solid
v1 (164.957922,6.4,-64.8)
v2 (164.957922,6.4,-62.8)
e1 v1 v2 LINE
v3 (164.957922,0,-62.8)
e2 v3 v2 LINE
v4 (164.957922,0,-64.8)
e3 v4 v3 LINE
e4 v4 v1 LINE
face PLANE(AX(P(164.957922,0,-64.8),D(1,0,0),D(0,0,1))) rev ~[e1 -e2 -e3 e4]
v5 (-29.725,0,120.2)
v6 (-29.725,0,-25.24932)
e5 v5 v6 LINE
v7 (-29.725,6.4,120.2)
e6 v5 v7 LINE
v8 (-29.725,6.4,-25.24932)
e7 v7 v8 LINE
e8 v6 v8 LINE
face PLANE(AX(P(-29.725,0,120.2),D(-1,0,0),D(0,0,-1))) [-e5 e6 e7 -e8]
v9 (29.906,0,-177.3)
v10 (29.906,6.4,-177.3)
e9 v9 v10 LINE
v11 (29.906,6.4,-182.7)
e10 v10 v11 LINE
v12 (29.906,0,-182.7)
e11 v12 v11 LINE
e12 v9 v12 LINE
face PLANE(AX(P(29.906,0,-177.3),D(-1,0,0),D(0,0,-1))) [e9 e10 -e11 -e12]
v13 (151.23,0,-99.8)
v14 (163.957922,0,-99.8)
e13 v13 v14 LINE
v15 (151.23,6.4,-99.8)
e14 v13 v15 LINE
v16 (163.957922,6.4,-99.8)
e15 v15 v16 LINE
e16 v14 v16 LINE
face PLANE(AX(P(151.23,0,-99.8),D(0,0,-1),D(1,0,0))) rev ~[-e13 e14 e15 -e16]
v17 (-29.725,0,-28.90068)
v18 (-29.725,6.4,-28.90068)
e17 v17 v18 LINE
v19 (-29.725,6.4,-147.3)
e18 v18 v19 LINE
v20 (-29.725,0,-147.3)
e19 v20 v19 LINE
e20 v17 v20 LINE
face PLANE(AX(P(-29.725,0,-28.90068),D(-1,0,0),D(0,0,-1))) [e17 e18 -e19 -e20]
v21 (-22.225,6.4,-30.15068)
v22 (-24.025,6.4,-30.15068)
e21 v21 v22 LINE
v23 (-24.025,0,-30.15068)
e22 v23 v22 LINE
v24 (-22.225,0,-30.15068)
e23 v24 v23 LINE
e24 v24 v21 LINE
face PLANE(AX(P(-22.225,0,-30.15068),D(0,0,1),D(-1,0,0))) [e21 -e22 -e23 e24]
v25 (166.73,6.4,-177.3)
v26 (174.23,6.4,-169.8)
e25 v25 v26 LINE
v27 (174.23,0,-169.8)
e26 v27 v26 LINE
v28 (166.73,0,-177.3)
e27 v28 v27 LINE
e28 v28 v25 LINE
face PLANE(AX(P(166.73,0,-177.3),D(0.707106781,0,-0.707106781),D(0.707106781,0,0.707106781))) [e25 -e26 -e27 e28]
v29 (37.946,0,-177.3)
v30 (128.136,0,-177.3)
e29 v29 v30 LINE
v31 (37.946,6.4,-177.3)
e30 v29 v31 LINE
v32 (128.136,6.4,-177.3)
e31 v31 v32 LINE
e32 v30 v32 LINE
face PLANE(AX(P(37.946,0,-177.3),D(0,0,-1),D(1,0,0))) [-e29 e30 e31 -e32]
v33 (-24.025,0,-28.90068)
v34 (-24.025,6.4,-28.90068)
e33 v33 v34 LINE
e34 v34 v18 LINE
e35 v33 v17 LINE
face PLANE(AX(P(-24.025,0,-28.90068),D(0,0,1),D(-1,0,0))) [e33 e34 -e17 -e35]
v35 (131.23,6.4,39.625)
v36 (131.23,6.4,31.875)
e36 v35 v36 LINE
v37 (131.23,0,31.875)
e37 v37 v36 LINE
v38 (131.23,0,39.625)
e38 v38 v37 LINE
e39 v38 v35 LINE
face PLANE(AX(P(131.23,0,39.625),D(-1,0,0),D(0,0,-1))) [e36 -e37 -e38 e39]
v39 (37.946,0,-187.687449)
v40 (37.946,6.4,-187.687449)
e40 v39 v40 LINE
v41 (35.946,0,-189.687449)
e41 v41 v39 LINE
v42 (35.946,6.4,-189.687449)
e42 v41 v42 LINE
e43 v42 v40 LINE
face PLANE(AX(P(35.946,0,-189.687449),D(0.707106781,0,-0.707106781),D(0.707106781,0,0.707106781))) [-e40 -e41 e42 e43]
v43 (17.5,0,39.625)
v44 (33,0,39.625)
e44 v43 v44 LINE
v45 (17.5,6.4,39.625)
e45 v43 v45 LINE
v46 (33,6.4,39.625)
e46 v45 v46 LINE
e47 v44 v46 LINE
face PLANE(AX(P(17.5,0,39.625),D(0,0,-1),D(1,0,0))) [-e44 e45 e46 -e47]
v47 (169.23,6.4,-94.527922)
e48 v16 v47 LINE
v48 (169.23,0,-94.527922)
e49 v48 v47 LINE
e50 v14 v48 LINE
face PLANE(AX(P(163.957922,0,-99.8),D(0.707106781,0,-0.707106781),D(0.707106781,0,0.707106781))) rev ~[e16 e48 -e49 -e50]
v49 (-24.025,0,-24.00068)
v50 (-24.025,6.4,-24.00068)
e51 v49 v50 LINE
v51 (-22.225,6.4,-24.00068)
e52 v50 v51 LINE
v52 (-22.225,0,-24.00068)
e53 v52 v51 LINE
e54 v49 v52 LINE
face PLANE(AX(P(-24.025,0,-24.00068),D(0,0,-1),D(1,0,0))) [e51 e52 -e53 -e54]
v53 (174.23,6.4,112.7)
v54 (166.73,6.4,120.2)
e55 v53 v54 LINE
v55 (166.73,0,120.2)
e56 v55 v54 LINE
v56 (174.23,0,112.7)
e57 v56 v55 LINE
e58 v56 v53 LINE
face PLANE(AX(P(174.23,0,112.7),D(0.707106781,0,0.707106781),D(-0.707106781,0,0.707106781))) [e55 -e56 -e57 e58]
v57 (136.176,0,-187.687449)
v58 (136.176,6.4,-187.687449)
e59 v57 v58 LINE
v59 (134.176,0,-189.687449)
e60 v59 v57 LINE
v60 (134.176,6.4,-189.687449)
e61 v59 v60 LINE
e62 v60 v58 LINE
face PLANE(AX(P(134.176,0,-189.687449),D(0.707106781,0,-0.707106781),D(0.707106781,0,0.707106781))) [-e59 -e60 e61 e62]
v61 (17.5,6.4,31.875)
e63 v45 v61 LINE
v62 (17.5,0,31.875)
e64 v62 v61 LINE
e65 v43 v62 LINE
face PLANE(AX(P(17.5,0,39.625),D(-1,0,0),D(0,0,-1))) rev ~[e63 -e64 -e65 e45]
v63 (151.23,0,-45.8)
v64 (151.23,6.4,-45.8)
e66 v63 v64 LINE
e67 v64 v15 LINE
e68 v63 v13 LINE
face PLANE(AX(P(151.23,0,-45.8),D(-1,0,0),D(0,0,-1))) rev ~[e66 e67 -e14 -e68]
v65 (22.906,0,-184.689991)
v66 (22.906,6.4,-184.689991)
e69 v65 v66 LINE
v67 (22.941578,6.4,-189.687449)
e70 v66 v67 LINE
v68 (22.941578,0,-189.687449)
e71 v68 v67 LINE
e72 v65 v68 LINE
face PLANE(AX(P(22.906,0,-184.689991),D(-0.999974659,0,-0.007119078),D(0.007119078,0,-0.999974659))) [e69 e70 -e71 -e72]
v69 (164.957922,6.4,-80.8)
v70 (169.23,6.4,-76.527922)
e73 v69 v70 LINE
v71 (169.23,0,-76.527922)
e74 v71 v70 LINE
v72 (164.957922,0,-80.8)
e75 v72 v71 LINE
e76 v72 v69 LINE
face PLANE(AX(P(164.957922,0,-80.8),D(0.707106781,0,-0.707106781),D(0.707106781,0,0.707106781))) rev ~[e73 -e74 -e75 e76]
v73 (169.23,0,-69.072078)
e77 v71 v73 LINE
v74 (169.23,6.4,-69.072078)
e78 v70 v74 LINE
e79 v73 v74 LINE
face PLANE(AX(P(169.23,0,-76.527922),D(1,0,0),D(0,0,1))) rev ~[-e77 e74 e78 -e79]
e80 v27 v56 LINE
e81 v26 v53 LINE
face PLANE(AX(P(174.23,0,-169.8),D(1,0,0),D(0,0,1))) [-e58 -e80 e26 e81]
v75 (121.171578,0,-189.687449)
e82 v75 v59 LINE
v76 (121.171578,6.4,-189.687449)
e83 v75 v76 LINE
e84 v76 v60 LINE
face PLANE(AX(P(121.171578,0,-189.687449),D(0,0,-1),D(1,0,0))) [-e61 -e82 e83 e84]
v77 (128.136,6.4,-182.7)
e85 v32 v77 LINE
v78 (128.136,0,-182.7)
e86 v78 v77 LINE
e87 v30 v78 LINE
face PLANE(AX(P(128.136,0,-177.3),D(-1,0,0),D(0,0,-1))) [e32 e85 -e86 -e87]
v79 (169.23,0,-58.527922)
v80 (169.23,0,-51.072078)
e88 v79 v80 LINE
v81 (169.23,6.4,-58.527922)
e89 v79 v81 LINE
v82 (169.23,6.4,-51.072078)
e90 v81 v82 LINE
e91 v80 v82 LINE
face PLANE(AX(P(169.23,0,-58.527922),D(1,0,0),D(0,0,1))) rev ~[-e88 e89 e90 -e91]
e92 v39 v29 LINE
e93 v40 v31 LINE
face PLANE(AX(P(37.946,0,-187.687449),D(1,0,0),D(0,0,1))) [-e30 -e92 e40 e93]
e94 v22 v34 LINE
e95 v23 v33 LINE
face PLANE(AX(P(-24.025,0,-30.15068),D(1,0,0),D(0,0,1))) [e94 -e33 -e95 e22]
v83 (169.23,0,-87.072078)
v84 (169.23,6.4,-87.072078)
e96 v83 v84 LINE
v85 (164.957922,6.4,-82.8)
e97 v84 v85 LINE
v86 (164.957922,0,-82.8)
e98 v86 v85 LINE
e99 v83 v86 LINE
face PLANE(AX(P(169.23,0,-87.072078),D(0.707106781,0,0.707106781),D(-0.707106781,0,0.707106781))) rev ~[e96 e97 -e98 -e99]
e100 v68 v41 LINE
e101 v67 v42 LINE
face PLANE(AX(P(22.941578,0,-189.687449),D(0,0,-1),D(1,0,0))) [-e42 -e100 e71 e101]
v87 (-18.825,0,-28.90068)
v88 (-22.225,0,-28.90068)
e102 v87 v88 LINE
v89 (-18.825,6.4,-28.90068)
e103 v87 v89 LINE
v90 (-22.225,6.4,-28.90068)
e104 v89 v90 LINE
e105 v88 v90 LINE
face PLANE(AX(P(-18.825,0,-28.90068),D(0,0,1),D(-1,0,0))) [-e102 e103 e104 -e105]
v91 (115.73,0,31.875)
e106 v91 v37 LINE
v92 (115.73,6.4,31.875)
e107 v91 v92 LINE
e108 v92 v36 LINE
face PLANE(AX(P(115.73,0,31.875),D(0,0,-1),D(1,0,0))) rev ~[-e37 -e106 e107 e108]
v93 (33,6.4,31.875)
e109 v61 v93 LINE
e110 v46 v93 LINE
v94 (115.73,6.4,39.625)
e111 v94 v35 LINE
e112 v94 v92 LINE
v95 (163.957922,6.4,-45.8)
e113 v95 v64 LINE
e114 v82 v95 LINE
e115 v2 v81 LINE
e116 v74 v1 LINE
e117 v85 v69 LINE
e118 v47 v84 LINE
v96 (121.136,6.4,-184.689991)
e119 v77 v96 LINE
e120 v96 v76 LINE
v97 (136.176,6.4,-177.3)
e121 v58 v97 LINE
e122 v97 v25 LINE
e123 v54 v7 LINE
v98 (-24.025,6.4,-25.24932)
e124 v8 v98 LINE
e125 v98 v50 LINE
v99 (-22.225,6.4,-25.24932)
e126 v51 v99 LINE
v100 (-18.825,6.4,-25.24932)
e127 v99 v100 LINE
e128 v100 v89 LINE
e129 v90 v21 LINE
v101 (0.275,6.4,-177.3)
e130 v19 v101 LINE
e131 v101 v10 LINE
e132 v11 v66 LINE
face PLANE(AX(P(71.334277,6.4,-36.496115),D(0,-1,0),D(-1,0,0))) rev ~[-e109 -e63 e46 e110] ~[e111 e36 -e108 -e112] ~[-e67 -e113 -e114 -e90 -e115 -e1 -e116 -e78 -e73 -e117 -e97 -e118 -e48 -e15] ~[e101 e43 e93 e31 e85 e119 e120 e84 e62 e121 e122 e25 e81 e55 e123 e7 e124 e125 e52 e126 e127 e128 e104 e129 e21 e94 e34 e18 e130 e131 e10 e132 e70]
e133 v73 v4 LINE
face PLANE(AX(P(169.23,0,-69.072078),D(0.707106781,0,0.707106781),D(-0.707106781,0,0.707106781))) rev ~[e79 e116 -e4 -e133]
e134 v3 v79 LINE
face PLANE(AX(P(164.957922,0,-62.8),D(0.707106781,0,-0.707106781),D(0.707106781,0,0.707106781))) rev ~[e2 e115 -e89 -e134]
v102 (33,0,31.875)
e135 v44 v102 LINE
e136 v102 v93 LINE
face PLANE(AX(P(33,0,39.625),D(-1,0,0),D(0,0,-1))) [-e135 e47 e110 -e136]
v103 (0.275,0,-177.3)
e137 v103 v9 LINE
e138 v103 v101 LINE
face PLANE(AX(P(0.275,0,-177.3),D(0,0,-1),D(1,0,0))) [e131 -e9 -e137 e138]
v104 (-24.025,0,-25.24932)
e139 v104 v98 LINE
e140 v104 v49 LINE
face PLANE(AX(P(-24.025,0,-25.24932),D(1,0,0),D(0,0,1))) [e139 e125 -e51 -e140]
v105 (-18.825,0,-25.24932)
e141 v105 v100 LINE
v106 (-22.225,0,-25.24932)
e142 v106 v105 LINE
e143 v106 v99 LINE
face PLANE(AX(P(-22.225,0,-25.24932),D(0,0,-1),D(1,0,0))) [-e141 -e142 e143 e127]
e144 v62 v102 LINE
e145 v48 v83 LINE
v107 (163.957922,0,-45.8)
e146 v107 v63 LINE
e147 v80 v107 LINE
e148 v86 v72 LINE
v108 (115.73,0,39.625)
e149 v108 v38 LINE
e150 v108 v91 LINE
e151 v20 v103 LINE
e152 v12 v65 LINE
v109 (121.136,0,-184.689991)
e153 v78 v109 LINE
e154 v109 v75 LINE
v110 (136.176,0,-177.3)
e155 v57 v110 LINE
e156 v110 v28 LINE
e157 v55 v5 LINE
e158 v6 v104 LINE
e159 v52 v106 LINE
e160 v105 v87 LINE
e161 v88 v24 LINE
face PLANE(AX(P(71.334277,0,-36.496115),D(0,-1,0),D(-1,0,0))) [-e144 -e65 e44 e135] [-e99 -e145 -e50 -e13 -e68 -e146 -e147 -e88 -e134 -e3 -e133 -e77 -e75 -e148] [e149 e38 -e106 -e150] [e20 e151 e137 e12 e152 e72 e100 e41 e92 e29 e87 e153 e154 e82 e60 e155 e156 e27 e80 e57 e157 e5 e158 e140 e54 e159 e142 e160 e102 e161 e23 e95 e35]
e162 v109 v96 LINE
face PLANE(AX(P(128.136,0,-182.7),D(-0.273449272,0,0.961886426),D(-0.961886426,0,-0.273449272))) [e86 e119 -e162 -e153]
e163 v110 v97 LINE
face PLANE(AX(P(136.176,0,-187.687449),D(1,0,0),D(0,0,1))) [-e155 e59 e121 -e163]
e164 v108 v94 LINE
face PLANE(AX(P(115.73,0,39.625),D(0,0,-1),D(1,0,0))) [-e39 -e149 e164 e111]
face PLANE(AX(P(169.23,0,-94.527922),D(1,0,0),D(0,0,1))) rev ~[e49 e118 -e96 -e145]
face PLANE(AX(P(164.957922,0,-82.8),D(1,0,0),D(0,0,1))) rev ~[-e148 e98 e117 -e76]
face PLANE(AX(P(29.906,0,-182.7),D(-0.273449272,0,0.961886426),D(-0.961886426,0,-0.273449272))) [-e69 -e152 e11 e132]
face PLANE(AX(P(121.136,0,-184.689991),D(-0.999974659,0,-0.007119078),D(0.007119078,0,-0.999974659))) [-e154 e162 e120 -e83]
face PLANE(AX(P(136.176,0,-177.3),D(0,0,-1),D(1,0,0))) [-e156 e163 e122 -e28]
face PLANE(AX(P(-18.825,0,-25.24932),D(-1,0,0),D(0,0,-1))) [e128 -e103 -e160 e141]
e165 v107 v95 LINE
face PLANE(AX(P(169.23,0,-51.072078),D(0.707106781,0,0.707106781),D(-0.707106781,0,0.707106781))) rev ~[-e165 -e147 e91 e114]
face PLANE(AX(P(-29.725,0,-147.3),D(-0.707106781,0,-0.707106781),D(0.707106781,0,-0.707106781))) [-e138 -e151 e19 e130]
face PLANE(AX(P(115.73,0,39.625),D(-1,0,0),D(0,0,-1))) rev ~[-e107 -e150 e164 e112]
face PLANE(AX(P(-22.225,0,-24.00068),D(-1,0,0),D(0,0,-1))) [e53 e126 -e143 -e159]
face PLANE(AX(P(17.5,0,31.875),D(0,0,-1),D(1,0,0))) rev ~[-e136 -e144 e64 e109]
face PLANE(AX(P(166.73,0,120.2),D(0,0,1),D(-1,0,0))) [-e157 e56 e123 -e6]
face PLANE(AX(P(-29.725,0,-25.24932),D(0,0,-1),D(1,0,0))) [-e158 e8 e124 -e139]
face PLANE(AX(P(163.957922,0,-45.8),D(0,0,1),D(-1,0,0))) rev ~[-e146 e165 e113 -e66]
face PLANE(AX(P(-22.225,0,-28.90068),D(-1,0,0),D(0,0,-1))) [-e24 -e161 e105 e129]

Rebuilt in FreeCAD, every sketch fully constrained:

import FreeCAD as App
import Part
import Sketcher
Q = App.Units.Quantity


def add_polygon(sketch, points):
    """Adds a closed chain of lines whose ends are joined by coincident constraints."""
    first, n = sketch.GeometryCount, len(points)
    for a, b in zip(points, points[1:] + points[:1]):
        sketch.addGeometry(Part.LineSegment(App.Vector(*a, 0), App.Vector(*b, 0)), False)
    for i in range(n):
        sketch.addConstraint(Sketcher.Constraint("Coincident", first + i, 2, first + (i + 1) % n, 1))

doc = App.newDocument("Part")
params = doc.addObject("Spreadsheet::Sheet", "Params")
for row, (alias, value) in enumerate([
    ("sketch1_height", "2 mm"),
    ("sketch1_height2", "54 mm"),
    ("sketch1_width", "5.7 mm"),
    ("sketch1_width2", "1.8 mm"),
    ("sketch1_width3", "3.4 mm"),
    ("pad1_length", "6.4 mm"),
], start=1):
    params.set(f"A{row}", alias)
    params.set(f"B{row}", "=" + value)
    params.setAlias(f"B{row}", alias)

body = doc.addObject("PartDesign::Body", "Body")

sketch1 = body.newObject("Sketcher::SketchObject", "Sketch")
sketch1.AttachmentSupport = (doc.getObject("XZ_Plane"), [""])
sketch1.MapMode = "FlatFace"
add_polygon(sketch1, [(166.7, -177.3), (136.2, -177.3), (136.2, -187.7), (134.2, -189.7), (121.2, -189.7), (121.1, -184.7), (128.1, -182.7), (128.1, -177.3), (37.9, -177.3), (37.9, -187.7), (35.9, -189.7), (22.9, -189.7), (22.9, -184.7), (29.9, -182.7), (29.9, -177.3), (0.3, -177.3), (-29.7, -147.3), (-29.7, -28.9), (-24, -28.9), (-24, -30.2), (-22.2, -30.2), (-22.2, -28.9), (-18.8, -28.9), (-18.8, -25.2), (-22.2, -25.2), (-22.2, -24), (-24, -24), (-24, -25.2), (-29.7, -25.2), (-29.7, 120.2), (166.7, 120.2), (174.2, 112.7), (174.2, -169.8)])
add_polygon(sketch1, [(115.7, 39.6), (115.7, 31.9), (131.2, 31.9), (131.2, 39.6)])
add_polygon(sketch1, [(17.5, 39.6), (17.5, 31.9), (33, 31.9), (33, 39.6)])
add_polygon(sketch1, [(165, -82.8), (165, -80.8), (169.2, -76.5), (169.2, -69.1), (165, -64.8), (165, -62.8), (169.2, -58.5), (169.2, -51.1), (164, -45.8), (151.2, -45.8), (151.2, -99.8), (164, -99.8), (169.2, -94.5), (169.2, -87.1)])
sketch1.addConstraint(Sketcher.Constraint("Horizontal", 0))
sketch1.addConstraint(Sketcher.Constraint("Vertical", 1))
sketch1.addConstraint(Sketcher.Constraint("Horizontal", 3))
sketch1.addConstraint(Sketcher.Constraint("Vertical", 6))
sketch1.addConstraint(Sketcher.Constraint("Horizontal", 7))
sketch1.addConstraint(Sketcher.Constraint("Vertical", 8))
sketch1.addConstraint(Sketcher.Constraint("Horizontal", 10))
sketch1.addConstraint(Sketcher.Constraint("Vertical", 13))
sketch1.addConstraint(Sketcher.Constraint("Horizontal", 14))
sketch1.addConstraint(Sketcher.Constraint("Vertical", 16))
sketch1.addConstraint(Sketcher.Constraint("Horizontal", 17))
sketch1.addConstraint(Sketcher.Constraint("Vertical", 18))
sketch1.addConstraint(Sketcher.Constraint("Horizontal", 19))
sketch1.addConstraint(Sketcher.Constraint("Vertical", 20))
sketch1.addConstraint(Sketcher.Constraint("Horizontal", 21))
sketch1.addConstraint(Sketcher.Constraint("Vertical", 22))
sketch1.addConstraint(Sketcher.Constraint("Horizontal", 23))
sketch1.addConstraint(Sketcher.Constraint("Vertical", 24))
sketch1.addConstraint(Sketcher.Constraint("Horizontal", 25))
sketch1.addConstraint(Sketcher.Constraint("Vertical", 26))
sketch1.addConstraint(Sketcher.Constraint("Horizontal", 27))
sketch1.addConstraint(Sketcher.Constraint("Vertical", 28))
sketch1.addConstraint(Sketcher.Constraint("Horizontal", 29))
sketch1.addConstraint(Sketcher.Constraint("Vertical", 31))
sketch1.addConstraint(Sketcher.Constraint("Vertical", 33))
sketch1.addConstraint(Sketcher.Constraint("Horizontal", 34))
sketch1.addConstraint(Sketcher.Constraint("Vertical", 35))
sketch1.addConstraint(Sketcher.Constraint("Horizontal", 36))
sketch1.addConstraint(Sketcher.Constraint("Vertical", 37))
sketch1.addConstraint(Sketcher.Constraint("Horizontal", 38))
sketch1.addConstraint(Sketcher.Constraint("Vertical", 39))
sketch1.addConstraint(Sketcher.Constraint("Horizontal", 40))
sketch1.addConstraint(Sketcher.Constraint("Vertical", 41))
sketch1.addConstraint(Sketcher.Constraint("Vertical", 43))
sketch1.addConstraint(Sketcher.Constraint("Vertical", 45))
sketch1.addConstraint(Sketcher.Constraint("Vertical", 47))
sketch1.addConstraint(Sketcher.Constraint("Horizontal", 49))
sketch1.addConstraint(Sketcher.Constraint("Vertical", 50))
sketch1.addConstraint(Sketcher.Constraint("Horizontal", 51))
sketch1.addConstraint(Sketcher.Constraint("Vertical", 53))
sketch1.addConstraint(Sketcher.Constraint("Parallel", 2, 9))
sketch1.addConstraint(Sketcher.Constraint("Parallel", 4, 11))
sketch1.addConstraint(Sketcher.Constraint("Parallel", 5, 12))
sketch1.addConstraint(Sketcher.Constraint("Perpendicular", 9, 15))
sketch1.addConstraint(Sketcher.Constraint("Parallel", 15, 30))
sketch1.addConstraint(Sketcher.Constraint("Perpendicular", 30, 32))
sketch1.addConstraint(Sketcher.Constraint("Parallel", 32, 42))
sketch1.addConstraint(Sketcher.Constraint("Perpendicular", 42, 44))
sketch1.addConstraint(Sketcher.Constraint("Perpendicular", 44, 46))
sketch1.addConstraint(Sketcher.Constraint("Perpendicular", 46, 48))
sketch1.addConstraint(Sketcher.Constraint("Perpendicular", 48, 52))
sketch1.addConstraint(Sketcher.Constraint("Perpendicular", 52, 54))
sketch1.addConstraint(Sketcher.Constraint("Horizontal", 0, 2, 6, 2))
sketch1.addConstraint(Sketcher.Constraint("Horizontal", 1, 2, 8, 2))
sketch1.addConstraint(Sketcher.Constraint("Horizontal", 3, 2, 9, 2))
sketch1.addConstraint(Sketcher.Constraint("Horizontal", 4, 2, 11, 2))
sketch1.addConstraint(Sketcher.Constraint("Horizontal", 5, 2, 12, 2))
sketch1.addConstraint(Sketcher.Constraint("Horizontal", 7, 2, 13, 2))
sketch1.addConstraint(Sketcher.Constraint("Horizontal", 17, 2, 20, 2))
sketch1.addConstraint(Sketcher.Constraint("Horizontal", 23, 2, 26, 2))
sketch1.addConstraint(Sketcher.Constraint("Horizontal", 34, 2, 37, 2))
sketch1.addConstraint(Sketcher.Constraint("Horizontal", 36, 2, 39, 2))
sketch1.addConstraint(Sketcher.Constraint("Vertical", 20, 2, 23, 2))
sketch1.addConstraint(Sketcher.Constraint("Vertical", 18, 2, 25, 2))
sketch1.addConstraint(Sketcher.Constraint("Vertical", 16, 2, 27, 2))
sketch1.addConstraint(Sketcher.Constraint("Vertical", 29, 2, 32, 2))
sketch1.addConstraint(Sketcher.Constraint("Vertical", 41, 2, 44, 2))
sketch1.addConstraint(Sketcher.Constraint("Vertical", 43, 2, 46, 2))
sketch1.addConstraint(Sketcher.Constraint("Vertical", 48, 2, 51, 2))
sketch1.addConstraint(Sketcher.Constraint("Vertical", 47, 2, 52, 2))
sketch1.addConstraint(Sketcher.Constraint("Equal", 3, 10))
sketch1.addConstraint(Sketcher.Constraint("Equal", 36, 38))
sketch1.addConstraint(Sketcher.Constraint("Equal", 41, 45))
sketch1.addConstraint(Sketcher.Constraint("Equal", 43, 47))
sketch1.addConstraint(Sketcher.Constraint("Equal", 47, 53))
sketch1.addConstraint(Sketcher.Constraint("Equal", 30, 32))
sketch1.addConstraint(Sketcher.Constraint("DistanceY", 41, 1, 41, 2, Q("2 mm")))
sketch1.addConstraint(Sketcher.Constraint("DistanceY", 50, 2, 50, 1, Q("54 mm")))
sketch1.addConstraint(Sketcher.Constraint("DistanceX", 17, 1, 17, 2, Q("5.7 mm")))
sketch1.addConstraint(Sketcher.Constraint("DistanceX", 19, 1, 19, 2, Q("1.8 mm")))
sketch1.addConstraint(Sketcher.Constraint("DistanceX", 21, 1, 21, 2, Q("3.4 mm")))
sketch1.addConstraint(Sketcher.Constraint("DistanceX", 34, 1, 34, 2, Q("15.5 mm")))
sketch1.addConstraint(Sketcher.Constraint("DistanceY", 6, 1, 6, 2, Q("5.4 mm")))
sketch1.addConstraint(Sketcher.Constraint("DistanceY", 31, 2, 31, 1, Q("282.5 mm")))
sketch1.addConstraint(Sketcher.Constraint("DistanceX", -1, 1, 38, 2, Q("33 mm")))
sketch1.addConstraint(Sketcher.Constraint("DistanceX", 2, 2, 1, 2, Q("2 mm")))
sketch1.addConstraint(Sketcher.Constraint("DistanceX", 4, 2, 5, 2, Q("7 mm")))
sketch1.addConstraint(Sketcher.Constraint("DistanceX", 15, 2, 14, 2, Q("30 mm")))
sketch1.addConstraint(Sketcher.Constraint("DistanceX", 33, 2, 29, 2, Q("51 mm")))
sketch1.addConstraint(Sketcher.Constraint("DistanceX", 34, 2, 30, 2, Q("43 mm")))
sketch1.addConstraint(Sketcher.Constraint("DistanceY", 31, 2, 41, 2, Q("89 mm")))
sketch1.addConstraint(Sketcher.Constraint("DistanceX", 42, 2, 31, 2, Q("5 mm")))
sketch1.addConstraint(Sketcher.Constraint("DistanceY", 41, 2, 44, 2, Q("16 mm")))
sketch1.addConstraint(Sketcher.Constraint("DistanceX", 49, 2, 47, 2, Q("18 mm")))
sketch1.addConstraint(Sketcher.Constraint("DistanceX", 7, 2, 7, 1, Q("90.19 mm")))
sketch1.addConstraint(Sketcher.Constraint("DistanceY", 18, 2, 18, 1, Q("1.25 mm")))
sketch1.addConstraint(Sketcher.Constraint("DistanceY", 33, 2, 33, 1, Q("7.75 mm")))
sketch1.addConstraint(Sketcher.Constraint("DistanceY", 0, 2, -1, 1, Q("177.3 mm")))
sketch1.addConstraint(Sketcher.Constraint("DistanceY", 20, 2, 24, 2, Q("4.9 mm")))
sketch1.addConstraint(Sketcher.Constraint("DistanceX", 0, 2, 0, 1, Q("30.554 mm")))
sketch1.addConstraint(Sketcher.Constraint("DistanceX", 14, 2, 14, 1, Q("29.631 mm")))
sketch1.addConstraint(Sketcher.Constraint("DistanceX", 29, 1, 29, 2, Q("196.455 mm")))
sketch1.addConstraint(Sketcher.Constraint("DistanceX", -1, 1, 29, 2, Q("166.73 mm")))
sketch1.addConstraint(Sketcher.Constraint("DistanceY", -1, 1, 33, 2, Q("31.875 mm")))
sketch1.addConstraint(Sketcher.Constraint("DistanceX", 3, 2, 3, 1, Q("13.004422 mm")))
sketch1.addConstraint(Sketcher.Constraint("DistanceY", 1, 2, 1, 1, Q("10.387449 mm")))
sketch1.addConstraint(Sketcher.Constraint("DistanceY", 16, 1, 16, 2, Q("118.39932 mm")))
sketch1.addConstraint(Sketcher.Constraint("DistanceY", 22, 1, 22, 2, Q("3.651359 mm")))
sketch1.addConstraint(Sketcher.Constraint("Distance", 42, Q("6.041631 mm")))
sketch1.addConstraint(Sketcher.Constraint("DistanceY", 4, 2, -1, 1, Q("184.689991 mm")))
sketch1.setExpression("Constraints[131]", "Params.sketch1_height")
sketch1.setExpression("Constraints[132]", "Params.sketch1_height2")
sketch1.setExpression("Constraints[133]", "Params.sketch1_width")
sketch1.setExpression("Constraints[134]", "Params.sketch1_width2")
sketch1.setExpression("Constraints[135]", "Params.sketch1_width3")
pad1 = body.newObject("PartDesign::Pad", "Pad")
pad1.Profile = sketch1
pad1.setExpression("Length", "Params.pad1_length")
pad1.Reversed = True

doc.recompute()
